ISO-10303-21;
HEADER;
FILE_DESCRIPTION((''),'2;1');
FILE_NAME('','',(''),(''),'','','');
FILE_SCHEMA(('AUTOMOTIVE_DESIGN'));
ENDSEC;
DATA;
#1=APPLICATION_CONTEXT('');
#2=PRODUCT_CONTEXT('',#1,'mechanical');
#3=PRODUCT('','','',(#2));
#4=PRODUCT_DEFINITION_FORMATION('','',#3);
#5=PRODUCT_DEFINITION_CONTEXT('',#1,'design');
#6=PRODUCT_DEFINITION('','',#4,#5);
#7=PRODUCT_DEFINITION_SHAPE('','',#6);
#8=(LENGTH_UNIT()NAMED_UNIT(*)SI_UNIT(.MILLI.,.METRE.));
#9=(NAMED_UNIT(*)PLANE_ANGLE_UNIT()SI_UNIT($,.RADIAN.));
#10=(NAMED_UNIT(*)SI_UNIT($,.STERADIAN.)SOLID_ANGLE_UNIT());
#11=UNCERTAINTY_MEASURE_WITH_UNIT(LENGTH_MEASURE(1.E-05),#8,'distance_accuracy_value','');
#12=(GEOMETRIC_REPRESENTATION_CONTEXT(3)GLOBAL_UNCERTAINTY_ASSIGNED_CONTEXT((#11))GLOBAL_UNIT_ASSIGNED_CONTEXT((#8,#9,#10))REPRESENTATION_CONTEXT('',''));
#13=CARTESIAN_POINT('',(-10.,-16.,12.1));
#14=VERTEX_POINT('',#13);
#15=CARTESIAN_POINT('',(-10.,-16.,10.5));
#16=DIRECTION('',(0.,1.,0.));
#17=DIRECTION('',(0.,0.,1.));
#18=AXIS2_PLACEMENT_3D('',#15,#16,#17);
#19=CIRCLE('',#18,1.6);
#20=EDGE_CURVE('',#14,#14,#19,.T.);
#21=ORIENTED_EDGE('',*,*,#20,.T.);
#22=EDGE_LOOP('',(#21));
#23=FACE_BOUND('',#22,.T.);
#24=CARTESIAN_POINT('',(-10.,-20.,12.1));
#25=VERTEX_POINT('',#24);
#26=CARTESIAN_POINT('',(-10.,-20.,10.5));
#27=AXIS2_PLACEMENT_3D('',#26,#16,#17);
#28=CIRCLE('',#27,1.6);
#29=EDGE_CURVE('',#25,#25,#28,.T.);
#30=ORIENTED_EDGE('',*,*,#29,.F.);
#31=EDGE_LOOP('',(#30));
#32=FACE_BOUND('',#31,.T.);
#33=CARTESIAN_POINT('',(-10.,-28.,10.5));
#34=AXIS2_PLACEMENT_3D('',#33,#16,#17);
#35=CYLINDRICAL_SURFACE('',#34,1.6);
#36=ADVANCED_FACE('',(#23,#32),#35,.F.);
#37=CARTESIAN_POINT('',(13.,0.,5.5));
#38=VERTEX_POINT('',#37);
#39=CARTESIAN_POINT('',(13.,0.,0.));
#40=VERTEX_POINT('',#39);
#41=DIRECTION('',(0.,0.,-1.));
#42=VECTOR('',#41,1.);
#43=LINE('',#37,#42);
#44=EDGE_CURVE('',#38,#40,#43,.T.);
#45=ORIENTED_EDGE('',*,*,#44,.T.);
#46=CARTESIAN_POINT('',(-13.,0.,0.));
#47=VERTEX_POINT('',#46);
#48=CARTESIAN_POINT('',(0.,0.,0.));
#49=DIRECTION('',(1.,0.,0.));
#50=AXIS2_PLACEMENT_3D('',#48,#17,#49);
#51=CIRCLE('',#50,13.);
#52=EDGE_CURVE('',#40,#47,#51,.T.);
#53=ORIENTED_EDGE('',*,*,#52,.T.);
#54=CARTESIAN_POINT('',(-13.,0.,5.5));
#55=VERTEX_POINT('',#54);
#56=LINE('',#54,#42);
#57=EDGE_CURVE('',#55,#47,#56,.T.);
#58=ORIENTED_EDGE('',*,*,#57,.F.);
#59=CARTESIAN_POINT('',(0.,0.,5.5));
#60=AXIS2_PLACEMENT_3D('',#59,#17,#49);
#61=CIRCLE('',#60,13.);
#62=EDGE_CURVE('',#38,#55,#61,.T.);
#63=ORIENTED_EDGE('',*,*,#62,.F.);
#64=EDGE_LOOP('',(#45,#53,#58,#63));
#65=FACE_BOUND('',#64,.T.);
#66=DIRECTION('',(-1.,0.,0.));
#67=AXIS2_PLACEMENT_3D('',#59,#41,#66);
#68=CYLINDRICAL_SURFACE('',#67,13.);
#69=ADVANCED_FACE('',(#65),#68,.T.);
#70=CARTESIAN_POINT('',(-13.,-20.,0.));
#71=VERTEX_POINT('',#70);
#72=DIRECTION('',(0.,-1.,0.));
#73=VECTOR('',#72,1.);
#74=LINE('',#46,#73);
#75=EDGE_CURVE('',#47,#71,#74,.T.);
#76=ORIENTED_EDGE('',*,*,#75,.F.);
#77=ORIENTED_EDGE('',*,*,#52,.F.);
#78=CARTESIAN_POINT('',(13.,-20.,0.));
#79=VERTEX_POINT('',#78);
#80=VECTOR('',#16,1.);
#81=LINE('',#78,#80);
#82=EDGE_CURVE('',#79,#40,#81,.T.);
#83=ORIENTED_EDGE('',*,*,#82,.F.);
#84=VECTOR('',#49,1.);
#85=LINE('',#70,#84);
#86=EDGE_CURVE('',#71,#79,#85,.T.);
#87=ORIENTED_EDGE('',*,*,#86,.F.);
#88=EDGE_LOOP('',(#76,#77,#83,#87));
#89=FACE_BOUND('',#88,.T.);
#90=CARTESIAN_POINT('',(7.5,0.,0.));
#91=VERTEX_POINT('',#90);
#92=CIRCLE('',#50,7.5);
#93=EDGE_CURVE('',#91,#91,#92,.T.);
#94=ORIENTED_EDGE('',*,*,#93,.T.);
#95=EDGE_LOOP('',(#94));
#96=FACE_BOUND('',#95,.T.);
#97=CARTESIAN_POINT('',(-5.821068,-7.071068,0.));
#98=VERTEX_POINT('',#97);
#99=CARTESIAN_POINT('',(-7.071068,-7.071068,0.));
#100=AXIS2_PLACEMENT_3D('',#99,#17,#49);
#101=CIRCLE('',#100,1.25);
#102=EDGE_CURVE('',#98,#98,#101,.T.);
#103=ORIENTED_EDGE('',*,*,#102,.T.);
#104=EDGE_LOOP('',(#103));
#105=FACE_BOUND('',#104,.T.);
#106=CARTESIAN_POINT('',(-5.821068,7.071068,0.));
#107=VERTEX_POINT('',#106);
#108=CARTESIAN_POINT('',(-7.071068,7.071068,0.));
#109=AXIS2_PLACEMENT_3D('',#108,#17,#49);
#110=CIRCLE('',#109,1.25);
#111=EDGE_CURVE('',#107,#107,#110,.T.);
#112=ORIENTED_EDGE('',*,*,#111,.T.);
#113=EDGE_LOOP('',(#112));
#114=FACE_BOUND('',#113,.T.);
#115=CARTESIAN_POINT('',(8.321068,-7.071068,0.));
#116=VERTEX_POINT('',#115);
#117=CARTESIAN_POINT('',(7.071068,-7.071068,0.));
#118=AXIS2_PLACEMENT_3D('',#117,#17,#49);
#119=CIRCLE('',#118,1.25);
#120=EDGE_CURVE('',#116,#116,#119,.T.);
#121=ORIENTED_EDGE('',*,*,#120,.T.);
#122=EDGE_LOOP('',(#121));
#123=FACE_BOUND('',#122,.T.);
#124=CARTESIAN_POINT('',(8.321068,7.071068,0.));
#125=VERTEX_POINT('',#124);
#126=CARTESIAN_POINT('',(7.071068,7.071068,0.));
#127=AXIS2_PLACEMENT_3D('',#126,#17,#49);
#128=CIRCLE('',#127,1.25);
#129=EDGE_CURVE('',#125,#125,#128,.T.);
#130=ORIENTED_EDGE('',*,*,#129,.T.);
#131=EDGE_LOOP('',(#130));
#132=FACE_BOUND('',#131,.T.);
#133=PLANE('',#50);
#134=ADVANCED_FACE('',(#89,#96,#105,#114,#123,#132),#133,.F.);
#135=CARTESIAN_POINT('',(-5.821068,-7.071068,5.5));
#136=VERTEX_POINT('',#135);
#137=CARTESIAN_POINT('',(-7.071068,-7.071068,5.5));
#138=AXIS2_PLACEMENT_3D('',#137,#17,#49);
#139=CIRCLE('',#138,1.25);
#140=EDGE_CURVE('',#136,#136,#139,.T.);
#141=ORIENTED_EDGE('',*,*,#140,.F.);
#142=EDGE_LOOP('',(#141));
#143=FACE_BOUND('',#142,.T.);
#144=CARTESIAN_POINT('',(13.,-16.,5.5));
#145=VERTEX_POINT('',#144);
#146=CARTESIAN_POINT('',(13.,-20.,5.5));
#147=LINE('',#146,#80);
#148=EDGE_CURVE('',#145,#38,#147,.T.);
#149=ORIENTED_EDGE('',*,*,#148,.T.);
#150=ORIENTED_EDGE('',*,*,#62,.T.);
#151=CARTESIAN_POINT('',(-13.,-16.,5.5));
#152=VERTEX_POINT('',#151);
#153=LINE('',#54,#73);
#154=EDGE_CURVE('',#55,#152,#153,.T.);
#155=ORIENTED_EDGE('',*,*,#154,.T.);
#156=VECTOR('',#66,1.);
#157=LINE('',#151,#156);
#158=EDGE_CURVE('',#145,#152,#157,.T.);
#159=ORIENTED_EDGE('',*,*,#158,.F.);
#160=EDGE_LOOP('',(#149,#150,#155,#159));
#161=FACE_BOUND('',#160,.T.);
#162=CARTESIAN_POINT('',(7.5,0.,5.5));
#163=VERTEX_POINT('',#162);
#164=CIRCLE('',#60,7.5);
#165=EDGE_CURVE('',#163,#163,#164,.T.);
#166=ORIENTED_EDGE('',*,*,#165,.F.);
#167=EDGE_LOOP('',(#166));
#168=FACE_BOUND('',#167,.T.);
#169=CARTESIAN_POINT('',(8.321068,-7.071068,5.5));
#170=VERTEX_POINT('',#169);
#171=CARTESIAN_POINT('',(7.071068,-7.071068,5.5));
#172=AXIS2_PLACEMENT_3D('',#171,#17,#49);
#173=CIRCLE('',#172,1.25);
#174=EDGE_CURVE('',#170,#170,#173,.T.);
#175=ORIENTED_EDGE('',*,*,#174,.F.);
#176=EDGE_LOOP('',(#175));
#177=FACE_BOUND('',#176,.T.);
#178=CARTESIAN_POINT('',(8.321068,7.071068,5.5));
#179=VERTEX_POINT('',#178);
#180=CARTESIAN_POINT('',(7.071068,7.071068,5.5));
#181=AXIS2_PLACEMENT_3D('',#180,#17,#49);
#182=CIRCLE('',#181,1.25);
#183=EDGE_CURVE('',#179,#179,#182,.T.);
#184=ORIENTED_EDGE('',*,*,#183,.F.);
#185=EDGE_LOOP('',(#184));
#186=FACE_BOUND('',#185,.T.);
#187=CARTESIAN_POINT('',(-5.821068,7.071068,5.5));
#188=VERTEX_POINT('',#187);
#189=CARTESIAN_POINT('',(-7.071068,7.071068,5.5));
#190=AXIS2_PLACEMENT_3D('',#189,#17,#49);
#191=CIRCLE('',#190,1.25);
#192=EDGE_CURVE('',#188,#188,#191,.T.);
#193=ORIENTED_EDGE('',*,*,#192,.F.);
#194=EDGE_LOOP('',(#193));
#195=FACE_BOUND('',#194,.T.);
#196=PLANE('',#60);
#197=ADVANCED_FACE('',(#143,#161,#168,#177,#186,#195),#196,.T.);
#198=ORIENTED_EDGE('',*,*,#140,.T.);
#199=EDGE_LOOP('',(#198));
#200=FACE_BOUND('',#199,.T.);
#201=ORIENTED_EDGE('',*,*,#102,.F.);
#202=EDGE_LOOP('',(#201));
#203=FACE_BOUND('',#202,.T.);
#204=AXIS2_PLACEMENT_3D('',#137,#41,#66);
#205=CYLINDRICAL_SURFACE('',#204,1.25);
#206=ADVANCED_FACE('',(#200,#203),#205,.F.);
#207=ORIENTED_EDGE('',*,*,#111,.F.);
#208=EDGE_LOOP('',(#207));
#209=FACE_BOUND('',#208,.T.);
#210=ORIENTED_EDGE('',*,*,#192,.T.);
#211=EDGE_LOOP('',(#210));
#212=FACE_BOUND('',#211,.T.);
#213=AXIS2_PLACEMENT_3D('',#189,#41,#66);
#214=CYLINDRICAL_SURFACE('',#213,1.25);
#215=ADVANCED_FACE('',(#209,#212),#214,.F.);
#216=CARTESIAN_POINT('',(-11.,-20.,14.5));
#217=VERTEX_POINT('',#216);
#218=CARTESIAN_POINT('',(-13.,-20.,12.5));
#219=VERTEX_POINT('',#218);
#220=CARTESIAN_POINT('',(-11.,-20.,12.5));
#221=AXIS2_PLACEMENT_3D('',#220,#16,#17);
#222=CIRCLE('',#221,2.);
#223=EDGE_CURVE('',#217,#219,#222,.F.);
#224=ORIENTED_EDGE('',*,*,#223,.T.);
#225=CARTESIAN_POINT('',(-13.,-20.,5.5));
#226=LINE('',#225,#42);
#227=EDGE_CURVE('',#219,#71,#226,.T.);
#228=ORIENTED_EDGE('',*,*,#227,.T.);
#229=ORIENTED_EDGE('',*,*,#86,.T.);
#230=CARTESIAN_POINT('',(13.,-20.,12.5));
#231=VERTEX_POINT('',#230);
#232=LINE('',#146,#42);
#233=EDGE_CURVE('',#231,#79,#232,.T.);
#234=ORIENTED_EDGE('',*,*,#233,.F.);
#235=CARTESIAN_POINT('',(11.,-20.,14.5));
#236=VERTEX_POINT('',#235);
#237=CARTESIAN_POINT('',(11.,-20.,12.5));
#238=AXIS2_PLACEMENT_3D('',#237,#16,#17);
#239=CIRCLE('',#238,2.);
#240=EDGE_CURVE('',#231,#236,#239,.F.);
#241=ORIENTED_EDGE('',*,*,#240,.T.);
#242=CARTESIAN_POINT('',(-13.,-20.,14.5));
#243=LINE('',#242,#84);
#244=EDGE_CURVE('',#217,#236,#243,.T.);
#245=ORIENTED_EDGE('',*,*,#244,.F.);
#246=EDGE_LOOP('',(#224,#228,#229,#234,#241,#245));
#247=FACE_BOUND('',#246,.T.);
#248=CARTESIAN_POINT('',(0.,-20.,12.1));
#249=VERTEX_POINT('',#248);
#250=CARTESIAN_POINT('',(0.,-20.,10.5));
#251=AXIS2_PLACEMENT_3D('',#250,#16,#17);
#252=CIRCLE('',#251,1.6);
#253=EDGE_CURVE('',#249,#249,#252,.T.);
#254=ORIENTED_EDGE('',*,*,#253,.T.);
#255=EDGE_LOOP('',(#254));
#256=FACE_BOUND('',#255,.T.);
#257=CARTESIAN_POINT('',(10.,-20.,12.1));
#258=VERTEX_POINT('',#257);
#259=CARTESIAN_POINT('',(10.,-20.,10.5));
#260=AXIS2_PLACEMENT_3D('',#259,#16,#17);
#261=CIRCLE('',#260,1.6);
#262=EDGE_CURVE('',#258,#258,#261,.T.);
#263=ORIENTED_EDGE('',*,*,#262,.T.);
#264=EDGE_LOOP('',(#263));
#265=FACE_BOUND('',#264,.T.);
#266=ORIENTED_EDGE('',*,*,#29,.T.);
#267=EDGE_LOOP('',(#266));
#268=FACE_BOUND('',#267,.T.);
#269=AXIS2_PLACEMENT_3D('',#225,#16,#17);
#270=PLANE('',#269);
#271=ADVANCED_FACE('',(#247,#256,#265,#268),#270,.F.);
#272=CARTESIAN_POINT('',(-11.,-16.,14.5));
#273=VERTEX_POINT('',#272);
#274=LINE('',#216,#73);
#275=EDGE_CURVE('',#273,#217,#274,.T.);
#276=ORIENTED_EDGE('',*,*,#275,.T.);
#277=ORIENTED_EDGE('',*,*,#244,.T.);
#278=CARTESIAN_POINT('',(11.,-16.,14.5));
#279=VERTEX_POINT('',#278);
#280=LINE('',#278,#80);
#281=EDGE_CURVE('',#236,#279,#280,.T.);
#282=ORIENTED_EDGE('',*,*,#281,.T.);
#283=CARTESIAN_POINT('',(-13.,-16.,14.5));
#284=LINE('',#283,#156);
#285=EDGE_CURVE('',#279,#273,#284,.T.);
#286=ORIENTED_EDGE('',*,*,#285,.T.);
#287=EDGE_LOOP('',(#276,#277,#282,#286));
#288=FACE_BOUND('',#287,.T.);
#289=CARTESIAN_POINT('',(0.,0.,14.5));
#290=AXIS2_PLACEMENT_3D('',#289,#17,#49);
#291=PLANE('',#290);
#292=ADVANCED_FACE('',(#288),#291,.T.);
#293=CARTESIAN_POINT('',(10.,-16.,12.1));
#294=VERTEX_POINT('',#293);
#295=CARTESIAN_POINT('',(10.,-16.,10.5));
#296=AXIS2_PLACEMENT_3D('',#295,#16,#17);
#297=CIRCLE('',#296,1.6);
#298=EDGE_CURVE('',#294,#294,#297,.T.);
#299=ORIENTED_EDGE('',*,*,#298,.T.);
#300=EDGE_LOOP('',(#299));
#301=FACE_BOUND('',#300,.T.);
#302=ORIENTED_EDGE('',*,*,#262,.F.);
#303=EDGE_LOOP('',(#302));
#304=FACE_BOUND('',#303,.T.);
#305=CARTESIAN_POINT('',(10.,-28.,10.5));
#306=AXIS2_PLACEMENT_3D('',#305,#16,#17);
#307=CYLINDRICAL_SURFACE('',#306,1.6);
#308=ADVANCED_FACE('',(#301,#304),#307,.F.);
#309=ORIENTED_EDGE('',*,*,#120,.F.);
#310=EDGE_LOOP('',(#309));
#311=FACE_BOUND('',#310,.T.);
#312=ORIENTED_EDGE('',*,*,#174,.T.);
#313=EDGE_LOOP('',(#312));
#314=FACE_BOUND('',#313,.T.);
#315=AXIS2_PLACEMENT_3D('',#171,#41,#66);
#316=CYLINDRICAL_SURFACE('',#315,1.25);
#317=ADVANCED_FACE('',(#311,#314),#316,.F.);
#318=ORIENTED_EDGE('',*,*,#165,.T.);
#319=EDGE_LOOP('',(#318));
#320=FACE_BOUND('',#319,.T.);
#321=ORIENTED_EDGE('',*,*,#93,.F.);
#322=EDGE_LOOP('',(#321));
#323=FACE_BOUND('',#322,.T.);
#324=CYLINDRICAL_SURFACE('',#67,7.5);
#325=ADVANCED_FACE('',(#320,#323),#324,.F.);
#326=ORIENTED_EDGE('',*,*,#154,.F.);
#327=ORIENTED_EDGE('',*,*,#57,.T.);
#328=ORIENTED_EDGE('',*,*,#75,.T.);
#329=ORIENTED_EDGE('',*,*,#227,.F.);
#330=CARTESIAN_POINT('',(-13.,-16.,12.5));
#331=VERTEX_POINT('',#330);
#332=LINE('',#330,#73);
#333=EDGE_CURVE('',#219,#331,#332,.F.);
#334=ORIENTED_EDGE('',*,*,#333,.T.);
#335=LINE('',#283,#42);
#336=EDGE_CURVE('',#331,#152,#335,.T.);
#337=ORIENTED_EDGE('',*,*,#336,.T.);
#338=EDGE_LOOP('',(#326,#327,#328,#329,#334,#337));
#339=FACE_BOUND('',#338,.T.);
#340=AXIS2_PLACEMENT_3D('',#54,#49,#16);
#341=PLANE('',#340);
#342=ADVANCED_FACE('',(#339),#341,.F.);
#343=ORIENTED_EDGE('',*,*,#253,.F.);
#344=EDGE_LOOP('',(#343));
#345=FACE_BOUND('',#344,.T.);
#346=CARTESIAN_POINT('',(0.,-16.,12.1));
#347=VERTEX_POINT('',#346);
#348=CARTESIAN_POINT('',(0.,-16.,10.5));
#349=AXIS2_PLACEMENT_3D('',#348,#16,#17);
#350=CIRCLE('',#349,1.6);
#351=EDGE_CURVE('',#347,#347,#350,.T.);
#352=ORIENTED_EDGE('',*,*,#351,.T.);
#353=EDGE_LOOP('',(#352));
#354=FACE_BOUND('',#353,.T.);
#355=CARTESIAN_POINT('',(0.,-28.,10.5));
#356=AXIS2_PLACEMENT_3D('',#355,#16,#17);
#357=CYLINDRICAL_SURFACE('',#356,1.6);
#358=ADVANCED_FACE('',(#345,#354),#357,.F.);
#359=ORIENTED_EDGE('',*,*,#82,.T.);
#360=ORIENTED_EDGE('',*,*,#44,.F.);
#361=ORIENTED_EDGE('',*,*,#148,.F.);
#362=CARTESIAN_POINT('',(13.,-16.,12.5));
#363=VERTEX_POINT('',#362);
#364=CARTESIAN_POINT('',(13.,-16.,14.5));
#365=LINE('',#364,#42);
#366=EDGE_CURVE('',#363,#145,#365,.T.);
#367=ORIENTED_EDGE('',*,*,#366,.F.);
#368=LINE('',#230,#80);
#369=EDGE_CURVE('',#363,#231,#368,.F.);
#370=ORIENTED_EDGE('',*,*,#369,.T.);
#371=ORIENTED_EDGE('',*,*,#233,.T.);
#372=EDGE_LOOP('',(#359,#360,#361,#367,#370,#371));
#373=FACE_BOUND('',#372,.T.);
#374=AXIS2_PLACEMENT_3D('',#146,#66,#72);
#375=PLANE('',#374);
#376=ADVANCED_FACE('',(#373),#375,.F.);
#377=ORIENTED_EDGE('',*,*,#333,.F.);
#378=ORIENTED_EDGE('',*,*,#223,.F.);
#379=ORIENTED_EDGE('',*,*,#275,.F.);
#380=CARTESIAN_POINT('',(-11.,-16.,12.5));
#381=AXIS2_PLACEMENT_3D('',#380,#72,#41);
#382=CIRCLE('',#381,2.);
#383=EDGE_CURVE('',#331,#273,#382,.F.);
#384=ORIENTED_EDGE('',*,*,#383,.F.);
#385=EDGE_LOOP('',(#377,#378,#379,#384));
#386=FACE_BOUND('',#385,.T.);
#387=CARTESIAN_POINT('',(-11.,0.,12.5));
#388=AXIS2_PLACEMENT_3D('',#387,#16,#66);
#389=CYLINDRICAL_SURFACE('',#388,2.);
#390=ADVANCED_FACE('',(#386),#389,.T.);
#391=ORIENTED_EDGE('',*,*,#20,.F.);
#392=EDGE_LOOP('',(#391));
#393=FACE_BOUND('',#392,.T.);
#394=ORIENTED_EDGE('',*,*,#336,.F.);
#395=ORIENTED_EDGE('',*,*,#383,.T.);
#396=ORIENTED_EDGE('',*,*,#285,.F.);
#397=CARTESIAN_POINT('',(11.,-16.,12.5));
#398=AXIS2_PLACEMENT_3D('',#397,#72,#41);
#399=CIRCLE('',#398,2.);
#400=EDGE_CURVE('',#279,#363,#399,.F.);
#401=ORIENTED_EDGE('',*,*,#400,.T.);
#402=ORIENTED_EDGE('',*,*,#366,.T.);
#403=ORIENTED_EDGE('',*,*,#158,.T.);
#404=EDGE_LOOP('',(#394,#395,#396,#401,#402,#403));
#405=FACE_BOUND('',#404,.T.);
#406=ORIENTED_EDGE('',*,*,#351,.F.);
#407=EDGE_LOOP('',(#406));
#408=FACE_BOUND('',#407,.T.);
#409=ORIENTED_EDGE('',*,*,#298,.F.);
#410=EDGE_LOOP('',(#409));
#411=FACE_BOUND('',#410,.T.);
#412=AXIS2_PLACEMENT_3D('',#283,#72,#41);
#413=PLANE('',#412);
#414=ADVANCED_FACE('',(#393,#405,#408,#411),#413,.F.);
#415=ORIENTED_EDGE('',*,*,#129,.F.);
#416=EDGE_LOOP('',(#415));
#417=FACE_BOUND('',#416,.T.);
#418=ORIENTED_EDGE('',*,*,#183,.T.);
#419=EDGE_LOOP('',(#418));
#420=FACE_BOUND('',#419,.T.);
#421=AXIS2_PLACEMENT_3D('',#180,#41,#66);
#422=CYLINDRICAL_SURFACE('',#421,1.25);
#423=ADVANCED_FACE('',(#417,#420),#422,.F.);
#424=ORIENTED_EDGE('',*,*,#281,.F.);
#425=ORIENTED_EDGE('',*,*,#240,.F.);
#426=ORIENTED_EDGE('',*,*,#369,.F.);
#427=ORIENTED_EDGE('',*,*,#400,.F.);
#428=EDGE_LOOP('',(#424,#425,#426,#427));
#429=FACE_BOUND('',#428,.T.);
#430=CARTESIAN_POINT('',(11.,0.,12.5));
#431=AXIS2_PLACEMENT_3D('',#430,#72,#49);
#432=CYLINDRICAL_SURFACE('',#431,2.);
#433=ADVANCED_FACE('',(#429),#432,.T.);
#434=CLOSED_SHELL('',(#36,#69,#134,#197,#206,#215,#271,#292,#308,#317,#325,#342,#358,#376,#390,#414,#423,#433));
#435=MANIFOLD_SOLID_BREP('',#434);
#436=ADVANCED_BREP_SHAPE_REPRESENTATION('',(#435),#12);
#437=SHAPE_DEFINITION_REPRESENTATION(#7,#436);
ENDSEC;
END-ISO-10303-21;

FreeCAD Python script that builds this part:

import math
import FreeCAD as App
import Part
import Sketcher
from FreeCAD import Vector
Q = App.Units.Quantity


def edges_at(feature, points):
    """Names of the edges that pass closest to the given points."""
    edges = feature.Shape.Edges
    near = lambda p: min(range(len(edges)), key=lambda i: edges[i].distToShape(Part.Vertex(*p))[0])
    return sorted({f"Edge{near(p) + 1}" for p in points})


def add_polygon(sketch, points):
    """Adds a closed chain of lines whose ends are joined by coincident constraints."""
    first, n = sketch.GeometryCount, len(points)
    for a, b in zip(points, points[1:] + points[:1]):
        sketch.addGeometry(Part.LineSegment(App.Vector(*a, 0), App.Vector(*b, 0)), False)
    for i in range(n):
        sketch.addConstraint(Sketcher.Constraint("Coincident", first + i, 2, first + (i + 1) % n, 1))

doc = App.newDocument("Part")
params = doc.addObject("Spreadsheet::Sheet", "Params")
for row, (alias, value) in enumerate([
    ("sketch1_diameter", "15 mm"),
    ("sketch1_radius", "13 mm"),
    ("sketch1_diameter2", "2.5 mm"),
    ("sketch1_height", "20 mm"),
    ("pad1_length", "5.5 mm"),
    ("sketch2_width", "26 mm"),
    ("sketch2_height", "4 mm"),
    ("pad2_length", "9 mm"),
    ("sketch3_diameter", "3.2 mm"),
    ("pocket1_length", "12 mm"),
    ("fillet_radius", "2 mm"),
], start=1):
    params.set(f"A{row}", alias)
    params.set(f"B{row}", "=" + value)
    params.setAlias(f"B{row}", alias)

body = doc.addObject("PartDesign::Body", "Body")

# Sketch on XY plane
sketch1 = body.newObject("Sketcher::SketchObject", "Sketch")
sketch1.AttachmentSupport = (doc.getObject("XY_Plane"), [""])
sketch1.MapMode = "FlatFace"
sketch1.addGeometry([
    Part.LineSegment(Vector(-13, 0, 0), Vector(-13, -20, 0)),  # 0
    Part.LineSegment(Vector(-13, -20, 0), Vector(13, -20, 0)),  # 1
    Part.LineSegment(Vector(13, -20, 0), Vector(13, 0, 0)),  # 2
    Part.ArcOfCircle(Part.Circle(Vector(0, 0, 0), Vector(0, 0, 1), 13), math.radians(0), math.radians(180)),  # 3
    Part.Circle(Vector(-7.1, -7.1, 0), Vector(0, 0, 1), 1.2),  # 4
    Part.Circle(Vector(7.1, -7.1, 0), Vector(0, 0, 1), 1.2),  # 5
    Part.Circle(Vector(-7.1, 7.1, 0), Vector(0, 0, 1), 1.2),  # 6
    Part.Circle(Vector(0, 0, 0), Vector(0, 0, 1), 7.5),  # 7
    Part.Circle(Vector(7.1, 7.1, 0), Vector(0, 0, 1), 1.2),  # 8
], False)
sketch1.addConstraint([
    Sketcher.Constraint("Coincident", 0, 2, 1, 1),
    Sketcher.Constraint("Coincident", 1, 2, 2, 1),
    Sketcher.Constraint("Tangent", 2, 2, 3, 1),
    Sketcher.Constraint("Tangent", 3, 2, 0, 1),
    Sketcher.Constraint("Vertical", 0),
    Sketcher.Constraint("Horizontal", 1),
    Sketcher.Constraint("Vertical", 2),
    Sketcher.Constraint("Coincident", 3, 3, -1, 1),
    Sketcher.Constraint("Coincident", 7, 3, -1, 1),
    Sketcher.Constraint("Equal", 4, 5),
    Sketcher.Constraint("Equal", 5, 6),
    Sketcher.Constraint("Equal", 6, 8),
    Sketcher.Constraint("Symmetric", 5, 3, 6, 3, -1, 1),
    Sketcher.Constraint("Symmetric", 4, 3, 8, 3, -1, 1),
    Sketcher.Constraint("Symmetric", 4, 3, 5, 3, -2),
    Sketcher.Constraint("Diameter", 7, Q("15 mm")),
    Sketcher.Constraint("Radius", 3, Q("13 mm")),
    Sketcher.Constraint("Diameter", 4, Q("2.5 mm")),
    Sketcher.Constraint("DistanceY", 0, 2, 0, 1, Q("20 mm")),
    Sketcher.Constraint("DistanceX", 4, 3, -1, 1, Q("7.071068 mm")),
    Sketcher.Constraint("DistanceY", 4, 3, -1, 1, Q("7.071068 mm")),
])
sketch1.setExpression("Constraints[15]", "Params.sketch1_diameter")
sketch1.setExpression("Constraints[16]", "Params.sketch1_radius")
sketch1.setExpression("Constraints[17]", "Params.sketch1_diameter2")
sketch1.setExpression("Constraints[18]", "Params.sketch1_height")
pad1 = body.newObject("PartDesign::Pad", "Pad")
pad1.Profile = sketch1
pad1.setExpression("Length", "Params.pad1_length")

# Sketch on XY plane
sketch2 = body.newObject("Sketcher::SketchObject", "Sketch001")
sketch2.AttachmentSupport = (doc.getObject("XY_Plane"), [""])
sketch2.MapMode = "FlatFace"
sketch2.AttachmentOffset = App.Placement(Vector(0, 0, 5.5), App.Rotation())
add_polygon(sketch2, [(-13, -16), (-13, -20), (13, -20), (13, -16)])  # lines 0-3
sketch2.addConstraint([
    Sketcher.Constraint("Vertical", 0),
    Sketcher.Constraint("Horizontal", 1),
    Sketcher.Constraint("Vertical", 2),
    Sketcher.Constraint("Horizontal", 3),
    Sketcher.Constraint("DistanceX", 1, 1, 1, 2, Q("26 mm")),
    Sketcher.Constraint("DistanceY", 0, 2, 0, 1, Q("4 mm")),
    Sketcher.Constraint("DistanceX", 0, 2, -1, 1, Q("13 mm")),
    Sketcher.Constraint("DistanceY", 0, 2, -1, 1, Q("20 mm")),
])
sketch2.setExpression("Constraints[8]", "Params.sketch2_width")
sketch2.setExpression("Constraints[9]", "Params.sketch2_height")
pad2 = body.newObject("PartDesign::Pad", "Pad001")
pad2.Profile = sketch2
pad2.setExpression("Length", "Params.pad2_length")

# Sketch on XZ plane
sketch3 = body.newObject("Sketcher::SketchObject", "Sketch002")
sketch3.AttachmentSupport = (doc.getObject("XZ_Plane"), [""])
sketch3.MapMode = "FlatFace"
sketch3.AttachmentOffset = App.Placement(Vector(0, 0, 16), App.Rotation())
sketch3.addGeometry([
    Part.Circle(Vector(-10, 10.5, 0), Vector(0, 0, 1), 1.6),
    Part.Circle(Vector(0, 10.5, 0), Vector(0, 0, 1), 1.6),
    Part.Circle(Vector(10, 10.5, 0), Vector(0, 0, 1), 1.6),
], False)
sketch3.addConstraint([
    Sketcher.Constraint("Equal", 0, 1),
    Sketcher.Constraint("Equal", 1, 2),
    Sketcher.Constraint("Symmetric", 0, 3, 2, 3, -2),
    Sketcher.Constraint("PointOnObject", 1, 3, -2),
    Sketcher.Constraint("Horizontal", 0, 3, 1, 3),
    Sketcher.Constraint("Diameter", 0, Q("3.2 mm")),
    Sketcher.Constraint("DistanceX", 0, 3, -1, 1, Q("10 mm")),
    Sketcher.Constraint("DistanceY", -1, 1, 0, 3, Q("10.5 mm")),
])
sketch3.setExpression("Constraints[5]", "Params.sketch3_diameter")
pocket1 = body.newObject("PartDesign::Pocket", "Pocket")
pocket1.Profile = sketch3
pocket1.setExpression("Length", "Params.pocket1_length")
pocket1.Reversed = True
doc.recompute()

fillet = body.newObject("PartDesign::Fillet", "Fillet")
fillet.Base = (pocket1, edges_at(pocket1, [(-13, -18, 14.5), (13, -18, 14.5)]))
fillet.setExpression("Radius", "Params.fillet_radius")

doc.recompute()
